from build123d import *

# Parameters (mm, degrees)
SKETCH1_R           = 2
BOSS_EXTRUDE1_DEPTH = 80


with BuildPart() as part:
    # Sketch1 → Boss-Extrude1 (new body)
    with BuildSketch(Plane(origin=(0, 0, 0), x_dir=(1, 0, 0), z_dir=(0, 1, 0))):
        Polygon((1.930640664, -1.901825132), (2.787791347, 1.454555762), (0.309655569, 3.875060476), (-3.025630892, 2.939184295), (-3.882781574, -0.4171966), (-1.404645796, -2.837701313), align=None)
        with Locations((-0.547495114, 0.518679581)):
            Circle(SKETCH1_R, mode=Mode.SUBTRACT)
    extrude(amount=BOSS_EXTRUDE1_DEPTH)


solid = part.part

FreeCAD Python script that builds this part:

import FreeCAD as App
import Part
import Sketcher

V = App.Vector

doc = App.newDocument("Part")
body = doc.addObject("PartDesign::Body", "Body")

# Sketch on XZ plane
sketch1 = body.newObject("Sketcher::SketchObject", "Sketch")
sketch1.AttachmentSupport = (doc.getObject("XZ_Plane"), [""])
sketch1.MapMode = "FlatFace"
sketch1.addGeometry(Part.LineSegment(V(1.9, 1.9, 0), V(2.8, -1.5, 0)), False)
sketch1.addGeometry(Part.LineSegment(V(2.8, -1.5, 0), V(0.3, -3.9, 0)), False)
sketch1.addGeometry(Part.LineSegment(V(0.3, -3.9, 0), V(-3, -2.9, 0)), False)
sketch1.addGeometry(Part.LineSegment(V(-3, -2.9, 0), V(-3.9, 0.4, 0)), False)
sketch1.addGeometry(Part.LineSegment(V(-3.9, 0.4, 0), V(-1.4, 2.8, 0)), False)
sketch1.addGeometry(Part.LineSegment(V(-1.4, 2.8, 0), V(1.9, 1.9, 0)), False)
sketch1.addGeometry(Part.Circle(V(-0.5, -0.5, 0), V(0, 0, 1), 2), False)
sketch1.addConstraint(Sketcher.Constraint("Coincident", 0, 2, 1, 1))
sketch1.addConstraint(Sketcher.Constraint("Coincident", 1, 2, 2, 1))
sketch1.addConstraint(Sketcher.Constraint("Coincident", 2, 2, 3, 1))
sketch1.addConstraint(Sketcher.Constraint("Coincident", 3, 2, 4, 1))
sketch1.addConstraint(Sketcher.Constraint("Coincident", 4, 2, 5, 1))
sketch1.addConstraint(Sketcher.Constraint("Coincident", 5, 2, 0, 1))
sketch1.addConstraint(Sketcher.Constraint("Parallel", 0, 3))
sketch1.addConstraint(Sketcher.Constraint("Parallel", 1, 4))
sketch1.addConstraint(Sketcher.Constraint("Parallel", 2, 5))
sketch1.addConstraint(Sketcher.Constraint("Equal", 0, 1))
sketch1.addConstraint(Sketcher.Constraint("Equal", 1, 2))
sketch1.addConstraint(Sketcher.Constraint("Equal", 2, 3))
sketch1.addConstraint(Sketcher.Constraint("Diameter", 6, 4.0))
sketch1.addConstraint(Sketcher.Constraint("Distance", 0, 3.464102))
sketch1.addConstraint(Sketcher.Constraint("DistanceY", -1, 1, 4, 2, 2.837701))
sketch1.addConstraint(Sketcher.Constraint("DistanceX", 4, 2, 1, 2, 1.714301))
sketch1.addConstraint(Sketcher.Constraint("DistanceY", 6, 3, -1, 1, 0.51868))
sketch1.addConstraint(Sketcher.Constraint("DistanceX", -1, 1, 0, 2, 2.787791))
sketch1.addConstraint(Sketcher.Constraint("DistanceY", 1, 2, -1, 1, 3.87506))
sketch1.addConstraint(Sketcher.Constraint("DistanceX", 2, 2, -1, 1, 3.025631))
sketch1.addConstraint(Sketcher.Constraint("DistanceX", 6, 3, 1, 2, 0.857151))
pad1 = body.newObject("PartDesign::Pad", "Pad")
pad1.Profile = sketch1
pad1.Length = 80
pad1.Reversed = True

doc.recompute()
